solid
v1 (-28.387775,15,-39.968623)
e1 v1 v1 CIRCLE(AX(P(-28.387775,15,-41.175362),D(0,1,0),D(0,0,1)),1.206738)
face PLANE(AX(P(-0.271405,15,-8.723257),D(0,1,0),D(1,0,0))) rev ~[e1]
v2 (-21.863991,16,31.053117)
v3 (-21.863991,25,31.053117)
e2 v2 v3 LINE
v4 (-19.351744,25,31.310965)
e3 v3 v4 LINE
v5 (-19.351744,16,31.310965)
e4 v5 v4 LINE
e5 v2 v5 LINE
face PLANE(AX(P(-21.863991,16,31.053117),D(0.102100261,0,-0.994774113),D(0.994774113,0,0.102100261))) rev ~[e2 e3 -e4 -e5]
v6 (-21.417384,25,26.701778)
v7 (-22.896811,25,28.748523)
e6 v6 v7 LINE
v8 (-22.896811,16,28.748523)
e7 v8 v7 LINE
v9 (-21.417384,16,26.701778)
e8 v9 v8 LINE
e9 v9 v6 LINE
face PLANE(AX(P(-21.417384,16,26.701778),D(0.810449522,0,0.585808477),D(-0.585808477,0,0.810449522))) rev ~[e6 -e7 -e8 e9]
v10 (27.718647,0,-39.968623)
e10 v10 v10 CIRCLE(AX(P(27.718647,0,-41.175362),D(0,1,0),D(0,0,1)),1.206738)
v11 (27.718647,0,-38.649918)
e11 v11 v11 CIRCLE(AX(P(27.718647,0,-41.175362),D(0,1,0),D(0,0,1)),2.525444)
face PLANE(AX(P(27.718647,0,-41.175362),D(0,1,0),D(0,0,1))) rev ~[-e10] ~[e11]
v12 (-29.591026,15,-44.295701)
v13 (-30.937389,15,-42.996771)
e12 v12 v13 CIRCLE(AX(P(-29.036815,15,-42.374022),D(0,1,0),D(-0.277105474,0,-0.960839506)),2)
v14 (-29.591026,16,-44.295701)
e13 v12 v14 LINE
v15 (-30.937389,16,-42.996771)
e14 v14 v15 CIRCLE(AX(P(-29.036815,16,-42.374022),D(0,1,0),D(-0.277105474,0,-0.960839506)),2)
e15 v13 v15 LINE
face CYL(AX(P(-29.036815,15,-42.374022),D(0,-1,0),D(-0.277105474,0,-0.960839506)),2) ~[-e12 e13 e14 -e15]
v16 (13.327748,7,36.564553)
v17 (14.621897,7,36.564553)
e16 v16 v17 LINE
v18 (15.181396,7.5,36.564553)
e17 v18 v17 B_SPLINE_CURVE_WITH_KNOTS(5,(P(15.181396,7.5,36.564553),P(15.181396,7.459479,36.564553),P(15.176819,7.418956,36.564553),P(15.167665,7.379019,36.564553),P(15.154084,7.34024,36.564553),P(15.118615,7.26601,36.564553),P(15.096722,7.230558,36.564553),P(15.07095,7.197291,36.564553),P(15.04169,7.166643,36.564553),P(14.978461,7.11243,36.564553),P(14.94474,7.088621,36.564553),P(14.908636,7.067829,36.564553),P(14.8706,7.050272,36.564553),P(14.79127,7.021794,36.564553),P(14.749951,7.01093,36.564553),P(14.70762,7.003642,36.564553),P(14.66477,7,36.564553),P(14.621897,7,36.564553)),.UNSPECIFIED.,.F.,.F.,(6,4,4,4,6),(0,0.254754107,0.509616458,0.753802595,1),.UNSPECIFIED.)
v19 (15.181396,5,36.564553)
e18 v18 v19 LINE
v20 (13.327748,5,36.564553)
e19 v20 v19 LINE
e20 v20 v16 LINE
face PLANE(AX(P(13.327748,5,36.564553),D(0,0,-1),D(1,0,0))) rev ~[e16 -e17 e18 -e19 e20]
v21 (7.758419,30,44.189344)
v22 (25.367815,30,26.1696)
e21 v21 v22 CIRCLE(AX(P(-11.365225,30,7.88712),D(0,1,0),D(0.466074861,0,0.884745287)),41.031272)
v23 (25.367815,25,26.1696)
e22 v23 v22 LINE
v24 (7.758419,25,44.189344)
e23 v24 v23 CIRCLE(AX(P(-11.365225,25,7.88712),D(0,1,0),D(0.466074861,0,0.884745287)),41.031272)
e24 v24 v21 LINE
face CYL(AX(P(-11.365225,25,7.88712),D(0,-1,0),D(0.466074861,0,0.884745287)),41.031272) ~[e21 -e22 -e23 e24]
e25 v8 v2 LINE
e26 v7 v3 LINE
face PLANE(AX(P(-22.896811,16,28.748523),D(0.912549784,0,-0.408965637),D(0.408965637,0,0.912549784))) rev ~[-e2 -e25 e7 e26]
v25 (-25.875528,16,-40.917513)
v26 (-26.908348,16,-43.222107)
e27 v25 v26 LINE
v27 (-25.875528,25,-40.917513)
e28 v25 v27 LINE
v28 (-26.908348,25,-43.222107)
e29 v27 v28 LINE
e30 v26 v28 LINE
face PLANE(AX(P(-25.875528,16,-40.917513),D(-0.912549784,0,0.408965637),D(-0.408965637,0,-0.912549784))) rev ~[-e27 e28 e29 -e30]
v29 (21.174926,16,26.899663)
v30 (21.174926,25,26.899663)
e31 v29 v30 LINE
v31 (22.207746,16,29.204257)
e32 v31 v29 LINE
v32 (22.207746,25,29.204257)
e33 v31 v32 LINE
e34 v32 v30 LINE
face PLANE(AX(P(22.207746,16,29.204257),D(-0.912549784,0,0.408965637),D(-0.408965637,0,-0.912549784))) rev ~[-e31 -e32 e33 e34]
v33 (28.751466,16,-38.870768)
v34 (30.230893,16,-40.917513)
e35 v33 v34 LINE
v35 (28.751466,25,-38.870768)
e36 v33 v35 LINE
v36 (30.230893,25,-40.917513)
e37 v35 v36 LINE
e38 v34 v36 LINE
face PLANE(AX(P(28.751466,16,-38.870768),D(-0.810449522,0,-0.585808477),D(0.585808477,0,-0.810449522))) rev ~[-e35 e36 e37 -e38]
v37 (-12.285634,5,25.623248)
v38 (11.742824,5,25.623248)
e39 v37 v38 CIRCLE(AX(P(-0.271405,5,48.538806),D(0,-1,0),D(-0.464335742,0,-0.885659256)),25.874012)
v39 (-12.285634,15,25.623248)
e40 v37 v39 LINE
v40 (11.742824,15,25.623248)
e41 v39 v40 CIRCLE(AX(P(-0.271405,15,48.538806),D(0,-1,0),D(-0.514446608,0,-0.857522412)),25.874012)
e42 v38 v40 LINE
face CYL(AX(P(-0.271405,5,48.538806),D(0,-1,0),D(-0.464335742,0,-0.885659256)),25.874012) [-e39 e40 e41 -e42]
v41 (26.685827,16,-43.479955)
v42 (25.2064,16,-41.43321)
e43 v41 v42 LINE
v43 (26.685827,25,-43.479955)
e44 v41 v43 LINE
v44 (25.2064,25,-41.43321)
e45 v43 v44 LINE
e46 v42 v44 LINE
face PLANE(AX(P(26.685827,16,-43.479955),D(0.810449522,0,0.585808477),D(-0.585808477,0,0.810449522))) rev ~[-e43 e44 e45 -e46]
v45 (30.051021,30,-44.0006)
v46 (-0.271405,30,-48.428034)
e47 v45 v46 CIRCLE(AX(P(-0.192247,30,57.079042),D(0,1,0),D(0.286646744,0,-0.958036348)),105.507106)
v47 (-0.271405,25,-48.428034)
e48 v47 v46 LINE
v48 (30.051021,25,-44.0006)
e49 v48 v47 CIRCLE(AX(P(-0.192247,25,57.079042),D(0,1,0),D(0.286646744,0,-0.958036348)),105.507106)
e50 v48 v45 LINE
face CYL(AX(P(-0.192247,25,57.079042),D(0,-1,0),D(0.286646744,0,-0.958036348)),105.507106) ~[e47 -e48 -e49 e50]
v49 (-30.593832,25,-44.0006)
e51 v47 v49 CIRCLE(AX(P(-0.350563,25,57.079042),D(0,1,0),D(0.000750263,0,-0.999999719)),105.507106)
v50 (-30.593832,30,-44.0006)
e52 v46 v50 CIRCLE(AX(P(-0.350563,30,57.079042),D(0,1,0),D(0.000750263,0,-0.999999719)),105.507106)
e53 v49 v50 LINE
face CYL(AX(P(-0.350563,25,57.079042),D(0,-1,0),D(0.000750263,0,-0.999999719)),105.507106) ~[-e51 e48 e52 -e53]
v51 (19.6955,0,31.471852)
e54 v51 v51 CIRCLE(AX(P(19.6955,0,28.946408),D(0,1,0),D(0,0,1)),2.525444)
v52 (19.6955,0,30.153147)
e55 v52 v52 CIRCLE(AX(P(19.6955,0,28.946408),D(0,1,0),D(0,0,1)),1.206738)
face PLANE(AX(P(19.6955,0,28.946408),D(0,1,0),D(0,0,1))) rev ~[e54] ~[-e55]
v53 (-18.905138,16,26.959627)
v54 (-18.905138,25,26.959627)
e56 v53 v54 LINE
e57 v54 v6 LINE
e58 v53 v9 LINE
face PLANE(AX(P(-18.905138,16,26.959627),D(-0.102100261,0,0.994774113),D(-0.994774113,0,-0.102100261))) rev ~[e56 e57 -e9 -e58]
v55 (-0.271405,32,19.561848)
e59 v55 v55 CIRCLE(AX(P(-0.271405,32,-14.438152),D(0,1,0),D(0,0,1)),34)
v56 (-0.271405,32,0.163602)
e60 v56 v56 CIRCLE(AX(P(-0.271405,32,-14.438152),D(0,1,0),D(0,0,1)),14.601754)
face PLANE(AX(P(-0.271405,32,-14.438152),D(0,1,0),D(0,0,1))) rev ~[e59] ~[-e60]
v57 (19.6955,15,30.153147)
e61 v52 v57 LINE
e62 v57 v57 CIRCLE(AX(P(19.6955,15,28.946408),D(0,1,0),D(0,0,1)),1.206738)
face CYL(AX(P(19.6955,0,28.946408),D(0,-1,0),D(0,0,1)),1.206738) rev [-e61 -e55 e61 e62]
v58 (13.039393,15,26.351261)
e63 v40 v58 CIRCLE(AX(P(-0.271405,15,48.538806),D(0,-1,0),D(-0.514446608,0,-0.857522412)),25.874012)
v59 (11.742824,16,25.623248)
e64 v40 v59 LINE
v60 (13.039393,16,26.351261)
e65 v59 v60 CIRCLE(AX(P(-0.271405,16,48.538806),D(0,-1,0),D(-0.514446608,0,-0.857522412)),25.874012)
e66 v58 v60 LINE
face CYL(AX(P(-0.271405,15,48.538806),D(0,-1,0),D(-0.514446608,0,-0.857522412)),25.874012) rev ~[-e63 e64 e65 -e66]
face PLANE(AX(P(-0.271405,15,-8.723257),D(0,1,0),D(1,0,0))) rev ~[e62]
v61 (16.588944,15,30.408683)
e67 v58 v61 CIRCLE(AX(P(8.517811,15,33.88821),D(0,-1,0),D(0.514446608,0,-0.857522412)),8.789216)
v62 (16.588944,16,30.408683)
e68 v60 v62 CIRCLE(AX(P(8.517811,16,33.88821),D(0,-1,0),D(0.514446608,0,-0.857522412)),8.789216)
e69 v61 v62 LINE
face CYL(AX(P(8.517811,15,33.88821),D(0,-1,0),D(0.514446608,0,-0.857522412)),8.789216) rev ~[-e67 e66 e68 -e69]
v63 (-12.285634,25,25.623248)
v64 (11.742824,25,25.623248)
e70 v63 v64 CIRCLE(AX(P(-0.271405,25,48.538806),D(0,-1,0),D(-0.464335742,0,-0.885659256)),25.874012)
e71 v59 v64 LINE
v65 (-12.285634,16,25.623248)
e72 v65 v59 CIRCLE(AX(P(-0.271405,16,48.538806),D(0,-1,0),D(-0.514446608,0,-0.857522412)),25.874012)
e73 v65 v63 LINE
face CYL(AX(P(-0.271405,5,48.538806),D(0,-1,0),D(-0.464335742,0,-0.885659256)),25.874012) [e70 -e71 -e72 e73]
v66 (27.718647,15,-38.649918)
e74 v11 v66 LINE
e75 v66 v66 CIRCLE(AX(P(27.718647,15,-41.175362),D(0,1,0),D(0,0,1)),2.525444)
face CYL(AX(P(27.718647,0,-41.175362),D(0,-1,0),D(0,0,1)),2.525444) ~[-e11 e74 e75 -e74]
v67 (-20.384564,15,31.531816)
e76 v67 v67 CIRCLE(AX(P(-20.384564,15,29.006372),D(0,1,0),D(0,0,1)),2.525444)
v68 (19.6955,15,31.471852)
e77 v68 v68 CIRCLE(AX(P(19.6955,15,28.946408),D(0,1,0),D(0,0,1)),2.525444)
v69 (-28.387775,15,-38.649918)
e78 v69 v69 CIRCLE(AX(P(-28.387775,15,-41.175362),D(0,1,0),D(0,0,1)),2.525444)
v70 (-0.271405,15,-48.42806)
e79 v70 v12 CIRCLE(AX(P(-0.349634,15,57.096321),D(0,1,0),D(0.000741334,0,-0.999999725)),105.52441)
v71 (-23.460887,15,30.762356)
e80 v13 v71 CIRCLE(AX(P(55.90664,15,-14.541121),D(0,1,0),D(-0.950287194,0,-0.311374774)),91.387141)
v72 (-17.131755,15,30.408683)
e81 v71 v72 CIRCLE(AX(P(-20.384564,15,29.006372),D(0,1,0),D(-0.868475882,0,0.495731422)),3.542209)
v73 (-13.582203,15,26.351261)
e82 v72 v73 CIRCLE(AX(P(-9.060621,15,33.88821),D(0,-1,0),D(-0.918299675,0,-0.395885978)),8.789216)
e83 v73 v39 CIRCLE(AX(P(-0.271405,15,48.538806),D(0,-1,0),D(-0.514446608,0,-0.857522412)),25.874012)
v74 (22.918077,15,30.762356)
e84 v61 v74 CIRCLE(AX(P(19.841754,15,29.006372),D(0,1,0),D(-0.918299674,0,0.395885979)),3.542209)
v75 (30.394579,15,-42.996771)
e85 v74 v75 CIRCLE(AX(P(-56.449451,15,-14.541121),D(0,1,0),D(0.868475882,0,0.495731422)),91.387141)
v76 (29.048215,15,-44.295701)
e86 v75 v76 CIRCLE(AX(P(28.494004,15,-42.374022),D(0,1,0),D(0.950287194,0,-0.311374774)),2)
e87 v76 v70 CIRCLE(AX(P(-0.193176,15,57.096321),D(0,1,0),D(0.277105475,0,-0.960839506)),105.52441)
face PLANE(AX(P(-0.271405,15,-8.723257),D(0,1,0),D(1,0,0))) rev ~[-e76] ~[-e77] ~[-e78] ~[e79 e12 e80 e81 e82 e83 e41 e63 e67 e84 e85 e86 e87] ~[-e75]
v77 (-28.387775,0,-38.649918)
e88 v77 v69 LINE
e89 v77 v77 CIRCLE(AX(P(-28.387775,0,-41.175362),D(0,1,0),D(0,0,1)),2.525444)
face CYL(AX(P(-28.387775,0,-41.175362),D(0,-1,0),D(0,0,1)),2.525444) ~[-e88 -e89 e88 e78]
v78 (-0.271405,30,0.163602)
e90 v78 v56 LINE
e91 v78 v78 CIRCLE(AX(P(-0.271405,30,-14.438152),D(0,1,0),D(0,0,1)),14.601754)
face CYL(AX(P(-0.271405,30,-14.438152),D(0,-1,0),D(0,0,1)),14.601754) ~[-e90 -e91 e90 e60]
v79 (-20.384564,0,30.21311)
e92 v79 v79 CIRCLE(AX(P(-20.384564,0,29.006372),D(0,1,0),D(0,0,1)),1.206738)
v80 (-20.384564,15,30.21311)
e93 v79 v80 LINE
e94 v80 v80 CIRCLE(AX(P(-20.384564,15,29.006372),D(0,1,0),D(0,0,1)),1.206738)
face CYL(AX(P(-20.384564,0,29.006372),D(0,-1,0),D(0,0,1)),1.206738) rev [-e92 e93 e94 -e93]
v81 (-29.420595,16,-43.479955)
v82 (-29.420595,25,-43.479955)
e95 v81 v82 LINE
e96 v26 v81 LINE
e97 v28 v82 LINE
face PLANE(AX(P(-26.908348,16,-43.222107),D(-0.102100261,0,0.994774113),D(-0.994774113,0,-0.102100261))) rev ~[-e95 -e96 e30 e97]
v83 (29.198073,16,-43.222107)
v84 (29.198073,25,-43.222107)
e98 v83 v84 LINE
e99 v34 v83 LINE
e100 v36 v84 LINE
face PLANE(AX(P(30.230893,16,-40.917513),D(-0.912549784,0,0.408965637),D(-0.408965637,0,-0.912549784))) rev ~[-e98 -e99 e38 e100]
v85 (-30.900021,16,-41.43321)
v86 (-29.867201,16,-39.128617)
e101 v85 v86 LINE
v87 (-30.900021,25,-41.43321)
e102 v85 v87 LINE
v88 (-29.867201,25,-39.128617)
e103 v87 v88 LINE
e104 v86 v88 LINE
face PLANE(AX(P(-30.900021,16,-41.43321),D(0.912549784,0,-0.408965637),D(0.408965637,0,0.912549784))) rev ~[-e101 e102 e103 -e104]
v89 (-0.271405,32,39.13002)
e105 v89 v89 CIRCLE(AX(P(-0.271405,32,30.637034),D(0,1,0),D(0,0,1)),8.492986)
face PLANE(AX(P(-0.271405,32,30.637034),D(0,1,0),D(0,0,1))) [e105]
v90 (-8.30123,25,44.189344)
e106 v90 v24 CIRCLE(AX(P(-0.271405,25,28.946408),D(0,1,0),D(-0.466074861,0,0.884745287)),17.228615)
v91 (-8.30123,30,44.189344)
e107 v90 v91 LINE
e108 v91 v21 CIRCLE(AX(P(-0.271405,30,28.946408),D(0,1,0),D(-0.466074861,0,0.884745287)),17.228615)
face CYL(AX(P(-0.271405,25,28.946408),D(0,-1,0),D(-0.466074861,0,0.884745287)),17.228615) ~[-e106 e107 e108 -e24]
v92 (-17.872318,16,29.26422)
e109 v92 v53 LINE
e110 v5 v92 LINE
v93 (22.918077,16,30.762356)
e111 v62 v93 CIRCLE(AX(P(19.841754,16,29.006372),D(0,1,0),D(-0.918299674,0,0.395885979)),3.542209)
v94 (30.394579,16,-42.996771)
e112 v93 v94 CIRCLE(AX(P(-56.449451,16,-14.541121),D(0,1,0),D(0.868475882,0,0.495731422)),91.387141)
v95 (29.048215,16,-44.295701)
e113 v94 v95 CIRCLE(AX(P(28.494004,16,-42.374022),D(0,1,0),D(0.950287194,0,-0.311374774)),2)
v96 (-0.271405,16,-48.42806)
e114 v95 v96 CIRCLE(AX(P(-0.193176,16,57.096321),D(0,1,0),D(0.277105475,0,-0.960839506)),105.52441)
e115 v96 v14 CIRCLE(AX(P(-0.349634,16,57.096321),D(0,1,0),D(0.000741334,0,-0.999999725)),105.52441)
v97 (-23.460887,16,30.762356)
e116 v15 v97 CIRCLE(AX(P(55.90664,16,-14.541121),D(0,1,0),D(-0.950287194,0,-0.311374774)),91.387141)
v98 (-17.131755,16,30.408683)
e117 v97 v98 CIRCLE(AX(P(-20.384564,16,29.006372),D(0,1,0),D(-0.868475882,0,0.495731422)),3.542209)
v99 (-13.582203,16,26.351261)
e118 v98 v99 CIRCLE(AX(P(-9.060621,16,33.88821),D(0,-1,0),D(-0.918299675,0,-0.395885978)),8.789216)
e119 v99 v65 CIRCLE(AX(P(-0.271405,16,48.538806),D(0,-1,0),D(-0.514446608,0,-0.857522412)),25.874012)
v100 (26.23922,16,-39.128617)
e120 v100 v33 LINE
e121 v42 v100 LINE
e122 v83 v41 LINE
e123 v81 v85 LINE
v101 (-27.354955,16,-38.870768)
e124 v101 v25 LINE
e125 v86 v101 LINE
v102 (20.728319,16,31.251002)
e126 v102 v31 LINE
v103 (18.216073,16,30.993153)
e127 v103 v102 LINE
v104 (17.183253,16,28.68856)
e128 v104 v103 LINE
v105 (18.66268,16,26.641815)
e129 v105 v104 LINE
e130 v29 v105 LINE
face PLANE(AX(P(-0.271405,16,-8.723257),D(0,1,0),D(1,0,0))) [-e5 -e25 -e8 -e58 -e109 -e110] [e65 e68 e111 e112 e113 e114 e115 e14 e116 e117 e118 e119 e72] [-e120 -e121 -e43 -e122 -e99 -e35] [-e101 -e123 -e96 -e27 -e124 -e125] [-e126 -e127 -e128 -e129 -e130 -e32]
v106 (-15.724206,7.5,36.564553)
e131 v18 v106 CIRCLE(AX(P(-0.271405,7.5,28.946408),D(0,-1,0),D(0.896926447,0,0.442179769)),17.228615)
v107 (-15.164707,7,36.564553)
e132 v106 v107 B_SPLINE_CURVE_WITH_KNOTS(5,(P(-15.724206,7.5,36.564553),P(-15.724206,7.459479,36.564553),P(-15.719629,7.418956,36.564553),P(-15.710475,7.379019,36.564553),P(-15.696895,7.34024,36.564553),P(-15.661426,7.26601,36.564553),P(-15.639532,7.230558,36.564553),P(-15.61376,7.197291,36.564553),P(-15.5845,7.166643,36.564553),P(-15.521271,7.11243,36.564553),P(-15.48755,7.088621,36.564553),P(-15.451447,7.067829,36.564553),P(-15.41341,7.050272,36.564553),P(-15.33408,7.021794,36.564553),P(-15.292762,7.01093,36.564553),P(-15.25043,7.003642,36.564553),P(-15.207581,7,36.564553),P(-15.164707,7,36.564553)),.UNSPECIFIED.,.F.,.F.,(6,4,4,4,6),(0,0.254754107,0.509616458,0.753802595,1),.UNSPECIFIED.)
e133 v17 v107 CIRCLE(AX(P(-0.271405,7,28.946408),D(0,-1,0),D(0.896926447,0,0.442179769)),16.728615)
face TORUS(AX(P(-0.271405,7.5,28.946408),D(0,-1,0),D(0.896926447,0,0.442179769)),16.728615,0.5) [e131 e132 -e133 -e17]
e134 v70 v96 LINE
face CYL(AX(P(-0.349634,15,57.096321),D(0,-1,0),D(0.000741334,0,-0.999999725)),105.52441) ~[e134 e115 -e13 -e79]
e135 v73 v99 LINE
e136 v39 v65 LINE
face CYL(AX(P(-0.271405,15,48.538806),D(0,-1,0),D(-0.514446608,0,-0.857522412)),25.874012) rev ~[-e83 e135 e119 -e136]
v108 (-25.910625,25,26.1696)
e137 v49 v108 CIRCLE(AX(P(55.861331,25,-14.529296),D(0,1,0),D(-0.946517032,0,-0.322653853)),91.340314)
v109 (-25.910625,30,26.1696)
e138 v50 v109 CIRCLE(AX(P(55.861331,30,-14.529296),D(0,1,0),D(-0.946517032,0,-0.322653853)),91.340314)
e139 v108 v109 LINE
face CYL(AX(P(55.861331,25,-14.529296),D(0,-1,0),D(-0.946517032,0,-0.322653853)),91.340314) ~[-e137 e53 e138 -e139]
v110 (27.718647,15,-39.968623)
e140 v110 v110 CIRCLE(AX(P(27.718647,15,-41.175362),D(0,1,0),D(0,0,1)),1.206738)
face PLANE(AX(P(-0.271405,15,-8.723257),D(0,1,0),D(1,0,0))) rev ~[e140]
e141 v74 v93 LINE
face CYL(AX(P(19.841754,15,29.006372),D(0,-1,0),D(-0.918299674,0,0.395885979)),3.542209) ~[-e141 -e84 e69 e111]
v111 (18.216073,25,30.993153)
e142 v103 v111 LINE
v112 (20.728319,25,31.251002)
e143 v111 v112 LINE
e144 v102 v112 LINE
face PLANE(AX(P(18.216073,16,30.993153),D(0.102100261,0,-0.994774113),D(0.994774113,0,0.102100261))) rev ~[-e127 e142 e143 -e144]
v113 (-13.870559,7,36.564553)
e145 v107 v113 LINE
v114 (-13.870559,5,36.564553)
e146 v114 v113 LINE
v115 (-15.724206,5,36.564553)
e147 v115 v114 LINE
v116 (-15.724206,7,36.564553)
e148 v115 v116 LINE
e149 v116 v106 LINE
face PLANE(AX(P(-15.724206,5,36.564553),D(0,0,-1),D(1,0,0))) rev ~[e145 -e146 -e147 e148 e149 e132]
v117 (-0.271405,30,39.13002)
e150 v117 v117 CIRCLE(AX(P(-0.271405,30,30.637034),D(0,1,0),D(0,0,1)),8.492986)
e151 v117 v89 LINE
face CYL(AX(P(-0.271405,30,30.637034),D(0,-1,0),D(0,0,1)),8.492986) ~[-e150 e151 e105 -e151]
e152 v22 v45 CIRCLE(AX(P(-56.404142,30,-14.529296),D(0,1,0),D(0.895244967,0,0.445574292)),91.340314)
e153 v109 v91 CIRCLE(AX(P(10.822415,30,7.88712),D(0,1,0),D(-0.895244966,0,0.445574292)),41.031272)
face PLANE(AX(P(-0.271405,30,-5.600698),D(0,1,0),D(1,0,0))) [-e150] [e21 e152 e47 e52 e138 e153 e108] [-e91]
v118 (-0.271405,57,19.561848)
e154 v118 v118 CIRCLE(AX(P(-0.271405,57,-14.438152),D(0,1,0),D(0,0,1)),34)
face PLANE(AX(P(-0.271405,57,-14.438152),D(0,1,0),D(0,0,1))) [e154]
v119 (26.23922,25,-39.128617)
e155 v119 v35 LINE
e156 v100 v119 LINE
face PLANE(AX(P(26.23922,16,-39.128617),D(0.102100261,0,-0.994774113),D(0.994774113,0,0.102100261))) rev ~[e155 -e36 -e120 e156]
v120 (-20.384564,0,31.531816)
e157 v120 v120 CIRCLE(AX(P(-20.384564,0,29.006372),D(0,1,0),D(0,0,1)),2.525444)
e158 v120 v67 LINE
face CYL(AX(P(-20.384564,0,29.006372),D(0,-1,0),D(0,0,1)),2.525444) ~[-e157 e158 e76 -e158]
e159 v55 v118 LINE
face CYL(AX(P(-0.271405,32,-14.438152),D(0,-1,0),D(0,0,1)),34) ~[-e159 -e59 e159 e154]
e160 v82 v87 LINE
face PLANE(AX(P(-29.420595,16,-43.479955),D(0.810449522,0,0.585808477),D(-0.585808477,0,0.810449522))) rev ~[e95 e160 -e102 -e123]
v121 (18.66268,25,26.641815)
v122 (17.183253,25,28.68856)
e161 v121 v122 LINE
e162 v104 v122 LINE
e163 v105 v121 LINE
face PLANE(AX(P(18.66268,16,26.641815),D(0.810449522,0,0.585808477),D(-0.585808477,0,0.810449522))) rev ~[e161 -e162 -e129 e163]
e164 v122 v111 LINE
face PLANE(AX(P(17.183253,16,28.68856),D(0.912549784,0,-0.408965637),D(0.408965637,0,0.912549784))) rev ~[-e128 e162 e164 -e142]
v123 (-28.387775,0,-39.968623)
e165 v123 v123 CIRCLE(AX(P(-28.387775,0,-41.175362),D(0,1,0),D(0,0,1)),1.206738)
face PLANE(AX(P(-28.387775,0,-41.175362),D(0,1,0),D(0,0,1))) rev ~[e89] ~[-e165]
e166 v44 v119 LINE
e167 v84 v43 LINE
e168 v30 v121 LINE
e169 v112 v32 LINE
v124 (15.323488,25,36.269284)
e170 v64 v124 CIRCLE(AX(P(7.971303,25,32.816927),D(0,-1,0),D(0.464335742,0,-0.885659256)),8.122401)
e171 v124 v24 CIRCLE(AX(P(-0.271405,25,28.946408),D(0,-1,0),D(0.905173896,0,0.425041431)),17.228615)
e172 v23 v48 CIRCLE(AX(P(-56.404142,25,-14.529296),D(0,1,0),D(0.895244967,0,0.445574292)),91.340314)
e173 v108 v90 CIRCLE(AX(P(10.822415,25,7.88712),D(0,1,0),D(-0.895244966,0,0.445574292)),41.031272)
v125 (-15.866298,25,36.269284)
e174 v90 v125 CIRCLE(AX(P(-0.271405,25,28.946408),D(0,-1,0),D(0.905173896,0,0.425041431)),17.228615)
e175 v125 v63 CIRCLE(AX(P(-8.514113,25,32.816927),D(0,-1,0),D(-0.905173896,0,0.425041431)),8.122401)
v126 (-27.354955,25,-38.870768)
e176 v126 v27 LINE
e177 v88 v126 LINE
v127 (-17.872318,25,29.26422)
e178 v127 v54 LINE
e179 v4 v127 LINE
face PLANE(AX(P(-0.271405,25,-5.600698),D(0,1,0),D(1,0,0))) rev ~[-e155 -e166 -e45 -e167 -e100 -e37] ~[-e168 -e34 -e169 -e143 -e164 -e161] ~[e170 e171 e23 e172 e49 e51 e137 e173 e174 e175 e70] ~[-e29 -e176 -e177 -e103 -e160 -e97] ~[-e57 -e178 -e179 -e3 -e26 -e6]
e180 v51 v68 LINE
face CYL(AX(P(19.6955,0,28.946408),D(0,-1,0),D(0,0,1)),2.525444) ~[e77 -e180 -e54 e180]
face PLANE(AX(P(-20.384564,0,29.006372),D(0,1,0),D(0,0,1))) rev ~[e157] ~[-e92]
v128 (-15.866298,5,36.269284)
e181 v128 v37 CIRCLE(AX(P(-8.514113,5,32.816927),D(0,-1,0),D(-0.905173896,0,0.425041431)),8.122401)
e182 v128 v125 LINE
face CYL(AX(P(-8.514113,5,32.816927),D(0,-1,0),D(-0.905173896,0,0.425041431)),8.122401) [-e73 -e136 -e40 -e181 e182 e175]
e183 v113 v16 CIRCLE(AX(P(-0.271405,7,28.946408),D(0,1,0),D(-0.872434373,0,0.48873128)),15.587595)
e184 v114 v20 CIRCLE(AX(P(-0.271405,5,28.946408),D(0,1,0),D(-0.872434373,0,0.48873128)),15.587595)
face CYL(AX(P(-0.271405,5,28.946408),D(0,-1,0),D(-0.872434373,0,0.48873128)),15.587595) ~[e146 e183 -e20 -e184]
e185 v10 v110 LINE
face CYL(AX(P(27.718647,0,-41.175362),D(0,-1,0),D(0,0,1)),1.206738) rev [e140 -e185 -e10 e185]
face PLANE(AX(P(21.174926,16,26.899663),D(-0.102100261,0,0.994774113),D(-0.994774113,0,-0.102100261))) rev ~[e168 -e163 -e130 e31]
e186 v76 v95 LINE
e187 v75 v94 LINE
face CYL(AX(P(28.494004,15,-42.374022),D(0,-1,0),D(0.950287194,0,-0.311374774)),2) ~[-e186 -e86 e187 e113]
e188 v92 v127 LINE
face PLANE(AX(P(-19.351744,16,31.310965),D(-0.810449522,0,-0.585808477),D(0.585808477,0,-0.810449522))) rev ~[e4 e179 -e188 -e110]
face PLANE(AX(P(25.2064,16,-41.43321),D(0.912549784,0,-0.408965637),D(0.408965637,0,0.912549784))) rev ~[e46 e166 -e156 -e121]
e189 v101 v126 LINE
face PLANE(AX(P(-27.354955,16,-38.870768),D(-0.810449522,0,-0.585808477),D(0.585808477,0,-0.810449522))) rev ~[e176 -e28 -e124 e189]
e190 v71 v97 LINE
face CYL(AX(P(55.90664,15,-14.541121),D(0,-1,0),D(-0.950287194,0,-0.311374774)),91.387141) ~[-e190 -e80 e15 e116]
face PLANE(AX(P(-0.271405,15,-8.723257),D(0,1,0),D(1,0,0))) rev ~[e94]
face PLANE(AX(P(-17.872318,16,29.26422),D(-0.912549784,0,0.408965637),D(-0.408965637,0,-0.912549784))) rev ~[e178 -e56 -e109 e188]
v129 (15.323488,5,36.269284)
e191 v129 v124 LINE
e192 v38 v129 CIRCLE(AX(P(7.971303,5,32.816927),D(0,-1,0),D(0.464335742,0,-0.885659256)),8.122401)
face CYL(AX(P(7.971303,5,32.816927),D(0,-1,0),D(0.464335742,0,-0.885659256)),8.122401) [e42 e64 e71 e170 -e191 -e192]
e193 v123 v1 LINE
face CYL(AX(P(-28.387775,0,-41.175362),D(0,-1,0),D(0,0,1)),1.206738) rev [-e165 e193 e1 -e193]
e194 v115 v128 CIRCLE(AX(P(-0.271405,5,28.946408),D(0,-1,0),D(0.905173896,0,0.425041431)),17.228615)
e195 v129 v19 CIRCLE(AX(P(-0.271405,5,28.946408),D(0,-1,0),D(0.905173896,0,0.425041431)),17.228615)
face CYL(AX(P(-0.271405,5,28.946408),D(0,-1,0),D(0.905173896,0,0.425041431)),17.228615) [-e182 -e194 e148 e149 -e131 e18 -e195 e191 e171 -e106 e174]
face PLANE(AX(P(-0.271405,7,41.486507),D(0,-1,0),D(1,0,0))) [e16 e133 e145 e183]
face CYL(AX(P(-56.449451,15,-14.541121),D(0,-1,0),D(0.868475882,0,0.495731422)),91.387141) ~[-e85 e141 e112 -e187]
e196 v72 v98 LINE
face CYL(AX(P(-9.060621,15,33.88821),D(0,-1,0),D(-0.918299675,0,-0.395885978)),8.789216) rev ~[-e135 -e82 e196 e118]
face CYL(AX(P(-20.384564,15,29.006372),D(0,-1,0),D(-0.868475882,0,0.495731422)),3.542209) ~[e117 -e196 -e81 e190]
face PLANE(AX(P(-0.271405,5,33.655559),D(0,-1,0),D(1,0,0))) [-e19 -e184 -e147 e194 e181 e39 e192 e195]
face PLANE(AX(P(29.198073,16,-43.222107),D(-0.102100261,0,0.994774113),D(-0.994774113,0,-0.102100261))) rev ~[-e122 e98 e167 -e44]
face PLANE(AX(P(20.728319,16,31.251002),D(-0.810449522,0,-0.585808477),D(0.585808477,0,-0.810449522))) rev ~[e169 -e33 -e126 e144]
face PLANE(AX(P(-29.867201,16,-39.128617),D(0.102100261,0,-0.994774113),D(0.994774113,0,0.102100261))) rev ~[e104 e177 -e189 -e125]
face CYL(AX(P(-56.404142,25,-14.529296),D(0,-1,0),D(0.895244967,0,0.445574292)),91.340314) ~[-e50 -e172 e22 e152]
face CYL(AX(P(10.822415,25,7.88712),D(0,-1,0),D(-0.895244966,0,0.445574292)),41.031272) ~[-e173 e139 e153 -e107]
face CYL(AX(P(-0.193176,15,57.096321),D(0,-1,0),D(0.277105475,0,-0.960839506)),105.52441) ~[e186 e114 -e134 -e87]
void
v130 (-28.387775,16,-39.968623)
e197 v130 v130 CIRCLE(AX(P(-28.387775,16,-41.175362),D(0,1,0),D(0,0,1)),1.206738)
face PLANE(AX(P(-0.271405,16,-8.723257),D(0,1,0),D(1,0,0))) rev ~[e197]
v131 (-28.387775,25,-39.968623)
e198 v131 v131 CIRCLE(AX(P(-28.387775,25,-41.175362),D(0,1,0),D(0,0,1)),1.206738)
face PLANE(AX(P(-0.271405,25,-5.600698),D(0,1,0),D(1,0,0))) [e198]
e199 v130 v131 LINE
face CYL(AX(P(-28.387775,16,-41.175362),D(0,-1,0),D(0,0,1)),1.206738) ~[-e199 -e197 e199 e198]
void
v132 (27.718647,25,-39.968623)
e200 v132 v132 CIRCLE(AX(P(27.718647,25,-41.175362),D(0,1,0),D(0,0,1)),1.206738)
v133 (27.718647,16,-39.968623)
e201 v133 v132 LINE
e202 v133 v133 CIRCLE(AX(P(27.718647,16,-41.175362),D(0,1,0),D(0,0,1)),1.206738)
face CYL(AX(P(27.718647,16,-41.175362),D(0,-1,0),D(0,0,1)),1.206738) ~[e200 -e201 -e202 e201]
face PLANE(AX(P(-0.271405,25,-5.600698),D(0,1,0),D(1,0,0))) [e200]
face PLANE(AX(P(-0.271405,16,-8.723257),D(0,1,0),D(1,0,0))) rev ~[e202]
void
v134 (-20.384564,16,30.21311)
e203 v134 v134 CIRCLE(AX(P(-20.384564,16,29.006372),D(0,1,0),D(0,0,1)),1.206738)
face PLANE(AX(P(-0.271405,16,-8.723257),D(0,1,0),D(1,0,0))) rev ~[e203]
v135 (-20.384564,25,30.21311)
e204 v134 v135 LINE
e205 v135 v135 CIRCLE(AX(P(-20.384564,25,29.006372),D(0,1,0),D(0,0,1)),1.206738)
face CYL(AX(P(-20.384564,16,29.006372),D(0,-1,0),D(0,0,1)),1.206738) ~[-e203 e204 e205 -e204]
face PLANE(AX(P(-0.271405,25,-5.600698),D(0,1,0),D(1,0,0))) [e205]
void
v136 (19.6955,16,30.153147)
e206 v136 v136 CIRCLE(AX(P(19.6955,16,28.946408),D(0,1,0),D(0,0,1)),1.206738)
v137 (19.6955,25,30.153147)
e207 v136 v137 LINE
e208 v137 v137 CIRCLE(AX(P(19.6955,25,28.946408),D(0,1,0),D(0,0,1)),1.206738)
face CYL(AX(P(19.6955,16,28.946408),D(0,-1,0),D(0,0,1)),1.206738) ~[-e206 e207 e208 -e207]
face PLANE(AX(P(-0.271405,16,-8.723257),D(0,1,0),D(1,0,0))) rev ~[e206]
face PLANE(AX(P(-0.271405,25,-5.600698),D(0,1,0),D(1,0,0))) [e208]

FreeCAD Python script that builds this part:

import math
import FreeCAD as App
import Part
import Sketcher

V = App.Vector
Q = App.Units.Quantity


def edges_at(feature, points):
    """Names of the edges that pass closest to the given points."""
    edges = feature.Shape.Edges
    near = lambda p: min(range(len(edges)), key=lambda i: edges[i].distToShape(Part.Vertex(*p))[0])
    return sorted({f"Edge{near(p) + 1}" for p in points})


def add_polygon(sketch, points):
    """Adds a closed chain of lines whose ends are joined by coincident constraints."""
    first, n = sketch.GeometryCount, len(points)
    for a, b in zip(points, points[1:] + points[:1]):
        sketch.addGeometry(Part.LineSegment(App.Vector(*a, 0), App.Vector(*b, 0)), False)
    for i in range(n):
        sketch.addConstraint(Sketcher.Constraint("Coincident", first + i, 2, first + (i + 1) % n, 1))

doc = App.newDocument("Part")
body = doc.addObject("PartDesign::Body", "Body")

# Sketch on XZ plane
sketch1 = body.newObject("Sketcher::SketchObject", "Sketch")
sketch1.AttachmentSupport = (doc.getObject("XZ_Plane"), [""])
sketch1.MapMode = "FlatFace"
sketch1.addGeometry(Part.Circle(V(-28.4, -41.2, 0), V(0, 0, 1), 2.5), False)
sketch1.addGeometry(Part.Circle(V(-28.4, -41.2, 0), V(0, 0, 1), 1.2), False)
sketch1.addConstraint(Sketcher.Constraint("Coincident", 1, 3, 0, 3))
sketch1.addConstraint(Sketcher.Constraint("Diameter", 0, Q("5.050888 mm")))
sketch1.addConstraint(Sketcher.Constraint("Diameter", 1, Q("2.413477 mm")))
sketch1.addConstraint(Sketcher.Constraint("DistanceY", 0, 3, -1, 1, Q("41.175362 mm")))
sketch1.addConstraint(Sketcher.Constraint("DistanceX", 0, 3, -1, 1, Q("28.387775 mm")))
pad1 = body.newObject("PartDesign::Pad", "Pad")
pad1.Profile = sketch1
pad1.Length = 15
pad1.Reversed = True
body2 = doc.addObject("PartDesign::Body", "Body001")

# Sketch on XZ plane
sketch2 = body2.newObject("Sketcher::SketchObject", "Sketch001")
sketch2.AttachmentSupport = (doc.getObject("XZ_Plane001"), [""])
sketch2.MapMode = "FlatFace"
sketch2.addGeometry(Part.Circle(V(27.7, -41.2, 0), V(0, 0, 1), 2.5), False)
sketch2.addGeometry(Part.Circle(V(27.7, -41.2, 0), V(0, 0, 1), 1.2), False)
sketch2.addConstraint(Sketcher.Constraint("Coincident", 1, 3, 0, 3))
sketch2.addConstraint(Sketcher.Constraint("Diameter", 0, Q("5.050888 mm")))
sketch2.addConstraint(Sketcher.Constraint("Diameter", 1, Q("2.413477 mm")))
sketch2.addConstraint(Sketcher.Constraint("DistanceY", 0, 3, -1, 1, Q("41.175362 mm")))
sketch2.addConstraint(Sketcher.Constraint("DistanceX", -1, 1, 0, 3, Q("27.718647 mm")))
pad2 = body2.newObject("PartDesign::Pad", "Pad001")
pad2.Profile = sketch2
pad2.Length = 15
pad2.Reversed = True
body3 = doc.addObject("PartDesign::Body", "Body002")

# Sketch on XZ plane
sketch3 = body3.newObject("Sketcher::SketchObject", "Sketch002")
sketch3.AttachmentSupport = (doc.getObject("XZ_Plane002"), [""])
sketch3.MapMode = "FlatFace"
sketch3.addGeometry(Part.Circle(V(19.7, 28.9, 0), V(0, 0, 1), 2.5), False)
sketch3.addGeometry(Part.Circle(V(19.7, 28.9, 0), V(0, 0, 1), 1.2), False)
sketch3.addConstraint(Sketcher.Constraint("Coincident", 1, 3, 0, 3))
sketch3.addConstraint(Sketcher.Constraint("Diameter", 0, Q("5.050888 mm")))
sketch3.addConstraint(Sketcher.Constraint("Diameter", 1, Q("2.413477 mm")))
sketch3.addConstraint(Sketcher.Constraint("DistanceX", -1, 1, 0, 3, Q("19.6955 mm")))
sketch3.addConstraint(Sketcher.Constraint("DistanceY", -1, 1, 0, 3, Q("28.946408 mm")))
pad3 = body3.newObject("PartDesign::Pad", "Pad002")
pad3.Profile = sketch3
pad3.Length = 15
pad3.Reversed = True
body4 = doc.addObject("PartDesign::Body", "Body003")

# Sketch on XZ plane
sketch4 = body4.newObject("Sketcher::SketchObject", "Sketch003")
sketch4.AttachmentSupport = (doc.getObject("XZ_Plane003"), [""])
sketch4.MapMode = "FlatFace"
sketch4.addGeometry(Part.Circle(V(-20.4, 29, 0), V(0, 0, 1), 2.5), False)
sketch4.addGeometry(Part.Circle(V(-20.4, 29, 0), V(0, 0, 1), 1.2), False)
sketch4.addConstraint(Sketcher.Constraint("Coincident", 1, 3, 0, 3))
sketch4.addConstraint(Sketcher.Constraint("Diameter", 0, Q("5.050888 mm")))
sketch4.addConstraint(Sketcher.Constraint("Diameter", 1, Q("2.413477 mm")))
sketch4.addConstraint(Sketcher.Constraint("DistanceY", -1, 1, 0, 3, Q("29.006372 mm")))
sketch4.addConstraint(Sketcher.Constraint("DistanceX", 0, 3, -1, 1, Q("20.384564 mm")))
pad4 = body4.newObject("PartDesign::Pad", "Pad003")
pad4.Profile = sketch4
pad4.Length = 15
pad4.Reversed = True
body.AllowCompound = True
doc.recompute()

boolean = body.newObject("PartDesign::Boolean", "Boolean")
boolean.Type = "Fuse"
boolean.addObjects([body2])
doc.recompute()

boolean2 = body.newObject("PartDesign::Boolean", "Boolean001")
boolean2.Type = "Fuse"
boolean2.addObjects([body3])
doc.recompute()

boolean3 = body.newObject("PartDesign::Boolean", "Boolean002")
boolean3.Type = "Fuse"
boolean3.addObjects([body4])

# Sketch on XZ plane
sketch5 = body.newObject("Sketcher::SketchObject", "Sketch004")
sketch5.AttachmentSupport = (doc.getObject("XZ_Plane"), [""])
sketch5.MapMode = "FlatFace"
sketch5.AttachmentOffset = App.Placement(V(0, 0, -15), App.Rotation())
sketch5.addGeometry(Part.ArcOfCircle(Part.Circle(V(-0.3, 57.1, 0), V(0, 0, 1), 105.5), math.radians(-106.09), math.radians(-89.96)), False)
sketch5.addGeometry(Part.ArcOfCircle(Part.Circle(V(-29, -42.4, 0), V(0, 0, 1), 2), math.radians(-162), math.radians(-106)), False)
sketch5.addGeometry(Part.ArcOfCircle(Part.Circle(V(55.9, -14.5, 0), V(0, 0, 1), 91.4), math.radians(150), math.radians(198)), False)
sketch5.addGeometry(Part.ArcOfCircle(Part.Circle(V(-20.4, 29, 0), V(0, 0, 1), 3.5), math.radians(23), math.radians(150)), False)
sketch5.addGeometry(Part.ArcOfCircle(Part.Circle(V(-9.1, 33.9, 0), V(0, 0, 1), 8.8), math.radians(-157), math.radians(-121)), False)
sketch5.addGeometry(Part.ArcOfCircle(Part.Circle(V(-0.3, 48.5, 0), V(0, 0, 1), 25.9), math.radians(-121), math.radians(-59)), False)
sketch5.addGeometry(Part.ArcOfCircle(Part.Circle(V(8.5, 33.9, 0), V(0, 0, 1), 8.8), math.radians(-59), math.radians(-23)), False)
sketch5.addGeometry(Part.ArcOfCircle(Part.Circle(V(19.8, 29, 0), V(0, 0, 1), 3.5), math.radians(30), math.radians(157)), False)
sketch5.addGeometry(Part.ArcOfCircle(Part.Circle(V(-56.4, -14.5, 0), V(0, 0, 1), 91.4), math.radians(-18), math.radians(30)), False)
sketch5.addGeometry(Part.ArcOfCircle(Part.Circle(V(28.5, -42.4, 0), V(0, 0, 1), 2), math.radians(-74), math.radians(-18)), False)
sketch5.addGeometry(Part.ArcOfCircle(Part.Circle(V(-0.2, 57.1, 0), V(0, 0, 1), 105.5), math.radians(-90.04), math.radians(-73.91)), False)
sketch5.addConstraint(Sketcher.Constraint("Tangent", 0, 1, 1, 2))
sketch5.addConstraint(Sketcher.Constraint("Tangent", 1, 1, 2, 2))
sketch5.addConstraint(Sketcher.Constraint("Tangent", 2, 1, 3, 2))
sketch5.addConstraint(Sketcher.Constraint("Tangent", 3, 1, 4, 1))
sketch5.addConstraint(Sketcher.Constraint("Tangent", 4, 2, 5, 1))
sketch5.addConstraint(Sketcher.Constraint("Tangent", 5, 2, 6, 1))
sketch5.addConstraint(Sketcher.Constraint("Tangent", 6, 2, 7, 2))
sketch5.addConstraint(Sketcher.Constraint("Tangent", 7, 1, 8, 2))
sketch5.addConstraint(Sketcher.Constraint("Tangent", 8, 1, 9, 2))
sketch5.addConstraint(Sketcher.Constraint("Tangent", 9, 1, 10, 2))
sketch5.addConstraint(Sketcher.Constraint("Coincident", 10, 1, 0, 2))
sketch5.addConstraint(Sketcher.Constraint("Equal", 4, 6))
sketch5.addConstraint(Sketcher.Constraint("Equal", 3, 7))
sketch5.addConstraint(Sketcher.Constraint("Equal", 2, 8))
sketch5.addConstraint(Sketcher.Constraint("Equal", 1, 9))
sketch5.addConstraint(Sketcher.Constraint("Equal", 0, 10))
sketch5.addConstraint(Sketcher.Constraint("Horizontal", 4, 3, 6, 3))
sketch5.addConstraint(Sketcher.Constraint("Horizontal", 3, 3, 7, 3))
sketch5.addConstraint(Sketcher.Constraint("Horizontal", 2, 3, 8, 3))
sketch5.addConstraint(Sketcher.Constraint("Horizontal", 1, 3, 9, 3))
sketch5.addConstraint(Sketcher.Constraint("Horizontal", 0, 3, 10, 3))
sketch5.addConstraint(Sketcher.Constraint("Radius", 1, Q("2 mm")))
sketch5.addConstraint(Sketcher.Constraint("Radius", 0, Q("105.52441 mm")))
sketch5.addConstraint(Sketcher.Constraint("Radius", 2, Q("91.387141 mm")))
sketch5.addConstraint(Sketcher.Constraint("Radius", 3, Q("3.542209 mm")))
sketch5.addConstraint(Sketcher.Constraint("Radius", 4, Q("8.789216 mm")))
sketch5.addConstraint(Sketcher.Constraint("Radius", 5, Q("25.874012 mm")))
sketch5.addConstraint(Sketcher.Constraint("DistanceY", 0, 1, -1, 1, Q("44.295701 mm")))
sketch5.addConstraint(Sketcher.Constraint("DistanceY", 1, 3, 2, 3, Q("27.832901 mm")))
sketch5.addConstraint(Sketcher.Constraint("DistanceY", -1, 1, 0, 3, Q("57.096321 mm")))
sketch5.addConstraint(Sketcher.Constraint("DistanceX", -1, 1, 2, 3, Q("55.90664 mm")))
sketch5.addConstraint(Sketcher.Constraint("DistanceY", -1, 1, 3, 3, Q("29.006372 mm")))
sketch5.addConstraint(Sketcher.Constraint("DistanceX", 4, 3, -1, 1, Q("9.060621 mm")))
sketch5.addConstraint(Sketcher.Constraint("DistanceX", -1, 1, 6, 3, Q("8.517811 mm")))
pad5 = body.newObject("PartDesign::Pad", "Pad004")
pad5.Profile = sketch5
pad5.Length = 1
pad5.Reversed = True

# Sketch on XZ plane
sketch6 = body.newObject("Sketcher::SketchObject", "Sketch005")
sketch6.AttachmentSupport = (doc.getObject("XZ_Plane"), [""])
sketch6.MapMode = "FlatFace"
sketch6.AttachmentOffset = App.Placement(V(0, 0, -16), App.Rotation())
add_polygon(sketch6, [(22.2, 29.2), (21.2, 26.9), (18.7, 26.6), (17.2, 28.7), (18.2, 31), (20.7, 31.3)])  # lines 0-5
sketch6.addGeometry(Part.Circle(V(19.7, 28.9, 0), V(0, 0, 1), 1.2), False)  # 6
add_polygon(sketch6, [(-18.9, 27), (-21.4, 26.7), (-22.9, 28.7), (-21.9, 31.1), (-19.4, 31.3), (-17.9, 29.3)])  # lines 7-12
sketch6.addGeometry(Part.Circle(V(-20.4, 29, 0), V(0, 0, 1), 1.2), False)  # 13
add_polygon(sketch6, [(26.7, -43.5), (25.2, -41.4), (26.2, -39.1), (28.8, -38.9), (30.2, -40.9), (29.2, -43.2)])  # lines 14-19
sketch6.addGeometry(Part.Circle(V(27.7, -41.2, 0), V(0, 0, 1), 1.2), False)  # 20
add_polygon(sketch6, [(-30.9, -41.4), (-29.9, -39.1), (-27.4, -38.9), (-25.9, -40.9), (-26.9, -43.2), (-29.4, -43.5)])  # lines 21-26
sketch6.addGeometry(Part.Circle(V(-28.4, -41.2, 0), V(0, 0, 1), 1.2), False)  # 27
sketch6.addConstraint(Sketcher.Constraint("Equal", 6, 13))
sketch6.addConstraint(Sketcher.Constraint("Equal", 13, 20))
sketch6.addConstraint(Sketcher.Constraint("Equal", 20, 27))
sketch6.addConstraint(Sketcher.Constraint("Parallel", 0, 3))
sketch6.addConstraint(Sketcher.Constraint("Parallel", 1, 4))
sketch6.addConstraint(Sketcher.Constraint("Parallel", 2, 5))
sketch6.addConstraint(Sketcher.Constraint("Parallel", 4, 7))
sketch6.addConstraint(Sketcher.Constraint("Parallel", 5, 8))
sketch6.addConstraint(Sketcher.Constraint("Parallel", 3, 9))
sketch6.addConstraint(Sketcher.Constraint("Parallel", 7, 10))
sketch6.addConstraint(Sketcher.Constraint("Parallel", 8, 11))
sketch6.addConstraint(Sketcher.Constraint("Parallel", 9, 12))
sketch6.addConstraint(Sketcher.Constraint("Parallel", 11, 14))
sketch6.addConstraint(Sketcher.Constraint("Parallel", 12, 15))
sketch6.addConstraint(Sketcher.Constraint("Parallel", 10, 16))
sketch6.addConstraint(Sketcher.Constraint("Parallel", 14, 17))
sketch6.addConstraint(Sketcher.Constraint("Parallel", 15, 18))
sketch6.addConstraint(Sketcher.Constraint("Parallel", 16, 19))
sketch6.addConstraint(Sketcher.Constraint("Parallel", 18, 21))
sketch6.addConstraint(Sketcher.Constraint("Parallel", 19, 22))
sketch6.addConstraint(Sketcher.Constraint("Parallel", 17, 23))
sketch6.addConstraint(Sketcher.Constraint("Parallel", 21, 24))
sketch6.addConstraint(Sketcher.Constraint("Parallel", 22, 25))
sketch6.addConstraint(Sketcher.Constraint("Parallel", 23, 26))
sketch6.addConstraint(Sketcher.Constraint("Horizontal", 20, 3, 27, 3))
sketch6.addConstraint(Sketcher.Constraint("Horizontal", 15, 2, 21, 2))
sketch6.addConstraint(Sketcher.Constraint("Horizontal", 16, 2, 22, 2))
sketch6.addConstraint(Sketcher.Constraint("Horizontal", 17, 2, 23, 2))
sketch6.addConstraint(Sketcher.Constraint("Horizontal", 18, 2, 24, 2))
sketch6.addConstraint(Sketcher.Constraint("Horizontal", 19, 2, 25, 2))
sketch6.addConstraint(Sketcher.Constraint("Equal", 0, 1))
sketch6.addConstraint(Sketcher.Constraint("Equal", 1, 2))
sketch6.addConstraint(Sketcher.Constraint("Equal", 2, 3))
sketch6.addConstraint(Sketcher.Constraint("Equal", 5, 7))
sketch6.addConstraint(Sketcher.Constraint("Equal", 7, 8))
sketch6.addConstraint(Sketcher.Constraint("Equal", 8, 9))
sketch6.addConstraint(Sketcher.Constraint("Equal", 9, 10))
sketch6.addConstraint(Sketcher.Constraint("Equal", 12, 14))
sketch6.addConstraint(Sketcher.Constraint("Equal", 14, 15))
sketch6.addConstraint(Sketcher.Constraint("Equal", 15, 16))
sketch6.addConstraint(Sketcher.Constraint("Equal", 16, 17))
sketch6.addConstraint(Sketcher.Constraint("Diameter", 6, Q("2.413477 mm")))
sketch6.addConstraint(Sketcher.Constraint("DistanceY", -1, 1, 4, 2, Q("31.251002 mm")))
sketch6.addConstraint(Sketcher.Constraint("DistanceX", -1, 1, 6, 3, Q("19.6955 mm")))
sketch6.addConstraint(Sketcher.Constraint("DistanceX", -1, 1, 14, 2, Q("25.2064 mm")))
sketch6.addConstraint(Sketcher.Constraint("DistanceX", 21, 2, -1, 1, Q("29.867201 mm")))
sketch6.addConstraint(Sketcher.Constraint("DistanceX", 27, 3, 0, 2, Q("49.562701 mm")))
sketch6.addConstraint(Sketcher.Constraint("DistanceY", -1, 1, 6, 3, Q("28.946408 mm")))
sketch6.addConstraint(Sketcher.Constraint("DistanceY", -1, 1, 13, 3, Q("29.006372 mm")))
sketch6.addConstraint(Sketcher.Constraint("DistanceY", 20, 3, -1, 1, Q("41.175362 mm")))
sketch6.addConstraint(Sketcher.Constraint("DistanceX", -1, 1, 1, 2, Q("18.66268 mm")))
sketch6.addConstraint(Sketcher.Constraint("DistanceY", -1, 1, 2, 2, Q("28.68856 mm")))
sketch6.addConstraint(Sketcher.Constraint("DistanceX", -1, 1, 4, 2, Q("20.728319 mm")))
sketch6.addConstraint(Sketcher.Constraint("DistanceY", -1, 1, 7, 2, Q("26.701778 mm")))
sketch6.addConstraint(Sketcher.Constraint("DistanceX", 8, 2, -1, 1, Q("22.896811 mm")))
sketch6.addConstraint(Sketcher.Constraint("DistanceX", 9, 2, -1, 1, Q("21.863991 mm")))
sketch6.addConstraint(Sketcher.Constraint("DistanceY", 14, 2, -1, 1, Q("41.43321 mm")))
sketch6.addConstraint(Sketcher.Constraint("DistanceX", 23, 2, -1, 1, Q("25.875528 mm")))
sketch6.addConstraint(Sketcher.Constraint("DistanceX", 13, 3, 20, 3, Q("48.103211 mm")))
sketch6.addConstraint(Sketcher.Constraint("DistanceX", 27, 3, 20, 3, Q("56.106421 mm")))
pad6 = body.newObject("PartDesign::Pad", "Pad005")
pad6.Profile = sketch6
pad6.Length = 9
pad6.Reversed = True

# Sketch on XZ plane
sketch7 = body.newObject("Sketcher::SketchObject", "Sketch006")
sketch7.AttachmentSupport = (doc.getObject("XZ_Plane"), [""])
sketch7.MapMode = "FlatFace"
sketch7.AttachmentOffset = App.Placement(V(0, 0, -25), App.Rotation())
sketch7.addGeometry(Part.ArcOfCircle(Part.Circle(V(-0.350563, 57.079042, 0), V(0, 0, 1), 105.507106), math.radians(-106.657308), math.radians(-89.957013)), False)
sketch7.addGeometry(Part.ArcOfCircle(Part.Circle(V(55.861331, -14.529296, 0), V(0, 0, 1), 91.340314), math.radians(153.539912), math.radians(198.823495)), False)
sketch7.addGeometry(Part.ArcOfCircle(Part.Circle(V(10.822415, 7.88712, 0), V(0, 0, 1), 41.031272), math.radians(117.779807), math.radians(153.539912)), False)
sketch7.addGeometry(Part.ArcOfCircle(Part.Circle(V(-0.271405, 28.946408, 0), V(0, 0, 1), 17.228615), math.radians(62.220193), math.radians(117.779807)), False)
sketch7.addGeometry(Part.ArcOfCircle(Part.Circle(V(-11.365225, 7.88712, 0), V(0, 0, 1), 41.031272), math.radians(26.460088), math.radians(62.220193)), False)
sketch7.addGeometry(Part.ArcOfCircle(Part.Circle(V(-56.404142, -14.529296, 0), V(0, 0, 1), 91.340314), math.radians(-18.823495), math.radians(26.460088)), False)
sketch7.addGeometry(Part.ArcOfCircle(Part.Circle(V(-0.192247, 57.079042, 0), V(0, 0, 1), 105.507106), math.radians(-90.042987), math.radians(-73.342692)), False)
sketch7.addConstraint(Sketcher.Constraint("Coincident", 0, 1, 1, 2))
sketch7.addConstraint(Sketcher.Constraint("Tangent", 1, 1, 2, 2))
sketch7.addConstraint(Sketcher.Constraint("Tangent", 2, 1, 3, 2))
sketch7.addConstraint(Sketcher.Constraint("Tangent", 3, 1, 4, 2))
sketch7.addConstraint(Sketcher.Constraint("Tangent", 4, 1, 5, 2))
sketch7.addConstraint(Sketcher.Constraint("Coincident", 5, 1, 6, 2))
sketch7.addConstraint(Sketcher.Constraint("Coincident", 6, 1, 0, 2))
sketch7.addConstraint(Sketcher.Constraint("Equal", 2, 4))
sketch7.addConstraint(Sketcher.Constraint("Equal", 1, 5))
sketch7.addConstraint(Sketcher.Constraint("Equal", 0, 6))
sketch7.addConstraint(Sketcher.Constraint("Horizontal", 2, 3, 4, 3))
sketch7.addConstraint(Sketcher.Constraint("Horizontal", 1, 3, 5, 3))
sketch7.addConstraint(Sketcher.Constraint("Horizontal", 0, 3, 6, 3))
sketch7.addConstraint(Sketcher.Constraint("Horizontal", 0, 1, 5, 1))
sketch7.addConstraint(Sketcher.Constraint("Radius", 0, Q("105.507106 mm")))
sketch7.addConstraint(Sketcher.Constraint("Radius", 1, Q("91.340314 mm")))
sketch7.addConstraint(Sketcher.Constraint("Radius", 2, Q("41.031272 mm")))
sketch7.addConstraint(Sketcher.Constraint("Radius", 3, Q("17.228615 mm")))
sketch7.addConstraint(Sketcher.Constraint("DistanceY", 0, 1, -1, 1, Q("44.0006 mm")))
sketch7.addConstraint(Sketcher.Constraint("DistanceY", -1, 1, 1, 1, Q("26.1696 mm")))
sketch7.addConstraint(Sketcher.Constraint("DistanceX", 1, 1, 4, 3, Q("14.5454 mm")))
sketch7.addConstraint(Sketcher.Constraint("DistanceX", -1, 1, 1, 3, Q("55.861331 mm")))
sketch7.addConstraint(Sketcher.Constraint("DistanceY", -1, 1, 2, 3, Q("7.88712 mm")))
sketch7.addConstraint(Sketcher.Constraint("DistanceY", 1, 3, 0, 3, Q("71.608338 mm")))
pad7 = body.newObject("PartDesign::Pad", "Pad006")
pad7.Profile = sketch7
pad7.Length = 5
pad7.Reversed = True

# Sketch on XZ plane
sketch8 = body.newObject("Sketcher::SketchObject", "Sketch007")
sketch8.AttachmentSupport = (doc.getObject("XZ_Plane"), [""])
sketch8.MapMode = "FlatFace"
sketch8.AttachmentOffset = App.Placement(V(0, 0, -5), App.Rotation())
sketch8.addGeometry(Part.ArcOfCircle(Part.Circle(V(0, 29, 0), V(0, 0, 1), 17), math.radians(25), math.radians(155)), False)
sketch8.addGeometry(Part.ArcOfCircle(Part.Circle(V(-9, 33, 0), V(0, 0, 1), 8), math.radians(155), math.radians(242)), False)
sketch8.addGeometry(Part.ArcOfCircle(Part.Circle(V(0, 49, 0), V(0, 0, 1), 26), math.radians(-118), math.radians(-62)), False)
sketch8.addGeometry(Part.ArcOfCircle(Part.Circle(V(8, 33, 0), V(0, 0, 1), 8), math.radians(-62), math.radians(25)), False)
sketch8.addConstraint(Sketcher.Constraint("Tangent", 0, 2, 1, 1))
sketch8.addConstraint(Sketcher.Constraint("Tangent", 1, 2, 2, 1))
sketch8.addConstraint(Sketcher.Constraint("Tangent", 2, 2, 3, 1))
sketch8.addConstraint(Sketcher.Constraint("Tangent", 3, 2, 0, 1))
sketch8.addConstraint(Sketcher.Constraint("Equal", 1, 3))
sketch8.addConstraint(Sketcher.Constraint("Horizontal", 1, 3, 3, 3))
sketch8.addConstraint(Sketcher.Constraint("Radius", 1, Q("8.122401 mm")))
sketch8.addConstraint(Sketcher.Constraint("Radius", 0, Q("17.228615 mm")))
sketch8.addConstraint(Sketcher.Constraint("Radius", 2, Q("25.874012 mm")))
sketch8.addConstraint(Sketcher.Constraint("DistanceX", 0, 2, -1, 1, Q("15.866298 mm")))
sketch8.addConstraint(Sketcher.Constraint("DistanceX", 0, 2, 3, 3, Q("23.837601 mm")))
sketch8.addConstraint(Sketcher.Constraint("DistanceY", -1, 1, 0, 3, Q("28.946408 mm")))
pad8 = body.newObject("PartDesign::Pad", "Pad007")
pad8.Profile = sketch8
pad8.Length = 20
pad8.Reversed = True

# Sketch on XZ plane
sketch9 = body.newObject("Sketcher::SketchObject", "Sketch008")
sketch9.AttachmentSupport = (doc.getObject("XZ_Plane"), [""])
sketch9.MapMode = "FlatFace"
sketch9.AttachmentOffset = App.Placement(V(0, 0, -5), App.Rotation())
sketch9.addGeometry(Part.LineSegment(V(-15.7, 36.6, 0), V(-13.9, 36.6, 0)), False)
sketch9.addGeometry(Part.ArcOfCircle(Part.Circle(V(-0.3, 28.9, 0), V(0, 0, 1), 15.6), math.radians(29), math.radians(151)), False)
sketch9.addGeometry(Part.LineSegment(V(13.3, 36.6, 0), V(15.2, 36.6, 0)), False)
sketch9.addGeometry(Part.ArcOfCircle(Part.Circle(V(-0.3, 28.9, 0), V(0, 0, 1), 17.2), math.radians(26), math.radians(154)), False)
sketch9.addConstraint(Sketcher.Constraint("Coincident", 0, 2, 1, 2))
sketch9.addConstraint(Sketcher.Constraint("Coincident", 1, 1, 2, 1))
sketch9.addConstraint(Sketcher.Constraint("Coincident", 2, 2, 3, 1))
sketch9.addConstraint(Sketcher.Constraint("Coincident", 3, 2, 0, 1))
sketch9.addConstraint(Sketcher.Constraint("Horizontal", 0))
sketch9.addConstraint(Sketcher.Constraint("Horizontal", 2))
sketch9.addConstraint(Sketcher.Constraint("Coincident", 3, 3, 1, 3))
sketch9.addConstraint(Sketcher.Constraint("Horizontal", 0, 2, 1, 1))
sketch9.addConstraint(Sketcher.Constraint("Radius", 1, Q("15.587595 mm")))
sketch9.addConstraint(Sketcher.Constraint("Radius", 3, Q("17.228615 mm")))
sketch9.addConstraint(Sketcher.Constraint("DistanceX", 1, 3, 2, 2, Q("15.452801 mm")))
sketch9.addConstraint(Sketcher.Constraint("DistanceY", -1, 1, 1, 3, Q("28.946408 mm")))
sketch9.addConstraint(Sketcher.Constraint("DistanceX", 0, 2, -1, 1, Q("13.870559 mm")))
pocket1 = body.newObject("PartDesign::Pocket", "Pocket")
pocket1.Profile = sketch9
pocket1.Length = 2
doc.recompute()

fillet = body.newObject("PartDesign::Fillet", "Fillet")
fillet.Base = (pocket1, edges_at(pocket1, [(-0.271, 7, 46.175)]))
fillet.Radius = 0.5

# Sketch on XZ plane
sketch10 = body.newObject("Sketcher::SketchObject", "Sketch009")
sketch10.AttachmentSupport = (doc.getObject("XZ_Plane"), [""])
sketch10.MapMode = "FlatFace"
sketch10.AttachmentOffset = App.Placement(V(0, 0, -30), App.Rotation())
sketch10.addGeometry(Part.Circle(V(0, -14, 0), V(0, 0, 1), 15), False)
sketch10.addGeometry(Part.Circle(V(0, 31, 0), V(0, 0, 1), 8), False)
sketch10.addConstraint(Sketcher.Constraint("Vertical", 0, 3, 1, 3))
sketch10.addConstraint(Sketcher.Constraint("Diameter", 0, Q("29.203508 mm")))
sketch10.addConstraint(Sketcher.Constraint("Diameter", 1, Q("16.985972 mm")))
sketch10.addConstraint(Sketcher.Constraint("DistanceY", 0, 3, -1, 1, Q("14.438152 mm")))
sketch10.addConstraint(Sketcher.Constraint("DistanceX", 0, 3, -1, 1, Q("0.271405 mm")))
sketch10.addConstraint(Sketcher.Constraint("DistanceY", -1, 1, 1, 3, Q("30.637034 mm")))
pad9 = body.newObject("PartDesign::Pad", "Pad008")
pad9.Profile = sketch10
pad9.Length = 2
pad9.Reversed = True

# Sketch on XZ plane
sketch11 = body.newObject("Sketcher::SketchObject", "Sketch010")
sketch11.AttachmentSupport = (doc.getObject("XZ_Plane"), [""])
sketch11.MapMode = "FlatFace"
sketch11.AttachmentOffset = App.Placement(V(0, 0, -32), App.Rotation())
sketch11.addGeometry(Part.Circle(V(0, -14, 0), V(0, 0, 1), 34), False)
sketch11.addConstraint(Sketcher.Constraint("Diameter", 0, Q("68 mm")))
sketch11.addConstraint(Sketcher.Constraint("DistanceY", 0, 3, -1, 1, Q("14.438152 mm")))
sketch11.addConstraint(Sketcher.Constraint("DistanceX", 0, 3, -1, 1, Q("0.271405 mm")))
pad10 = body.newObject("PartDesign::Pad", "Pad009")
pad10.Profile = sketch11
pad10.Length = 25
pad10.Reversed = True

doc.recompute()
